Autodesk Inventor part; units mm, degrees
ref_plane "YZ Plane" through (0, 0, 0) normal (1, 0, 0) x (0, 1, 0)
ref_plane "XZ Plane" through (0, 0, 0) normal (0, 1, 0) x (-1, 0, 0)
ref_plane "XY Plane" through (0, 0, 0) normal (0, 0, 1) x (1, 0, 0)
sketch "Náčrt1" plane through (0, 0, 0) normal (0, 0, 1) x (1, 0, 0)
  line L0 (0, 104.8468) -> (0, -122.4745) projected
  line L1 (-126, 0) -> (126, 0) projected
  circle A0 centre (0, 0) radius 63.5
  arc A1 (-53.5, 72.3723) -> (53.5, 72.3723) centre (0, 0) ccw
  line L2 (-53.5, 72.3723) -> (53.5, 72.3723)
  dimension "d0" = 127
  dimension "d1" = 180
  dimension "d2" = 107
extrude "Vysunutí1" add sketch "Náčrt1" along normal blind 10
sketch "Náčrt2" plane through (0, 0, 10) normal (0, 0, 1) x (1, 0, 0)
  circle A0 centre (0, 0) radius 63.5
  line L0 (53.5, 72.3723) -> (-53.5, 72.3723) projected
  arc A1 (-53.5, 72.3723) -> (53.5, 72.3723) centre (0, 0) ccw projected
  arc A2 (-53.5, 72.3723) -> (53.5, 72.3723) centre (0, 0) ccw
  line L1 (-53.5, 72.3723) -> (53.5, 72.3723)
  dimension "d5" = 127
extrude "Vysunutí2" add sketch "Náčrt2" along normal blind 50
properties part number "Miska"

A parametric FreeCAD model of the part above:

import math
import FreeCAD as App
import Part
import Sketcher
from FreeCAD import Vector

doc = App.newDocument("Part")
body = doc.addObject("PartDesign::Body", "Body")

# Sketch on XY plane
sketch1 = body.newObject("Sketcher::SketchObject", "Sketch")
sketch1.AttachmentSupport = (doc.getObject("XY_Plane"), [""])
sketch1.MapMode = "FlatFace"
sketch1.addGeometry([
    Part.LineSegment(Vector(54, 72, 0), Vector(-54, 72, 0)),
    Part.ArcOfCircle(Part.Circle(Vector(0, 0, 0), Vector(0, 0, 1), 90), math.radians(126), math.radians(414)),
], False)
sketch1.addConstraint([
    Sketcher.Constraint("Coincident", 0, 1, 1, 2),
    Sketcher.Constraint("Coincident", 1, 1, 0, 2),
    Sketcher.Constraint("Horizontal", 0),
    Sketcher.Constraint("Coincident", 1, 3, -1, 1),
    Sketcher.Constraint("Radius", 1, 90.0),
    Sketcher.Constraint("DistanceX", 0, 2, 0, 1, 107.0),
])
pad1 = body.newObject("PartDesign::Pad", "Pad")
pad1.Profile = sketch1
pad1.Length = 10

# Sketch on XY plane
sketch2 = body.newObject("Sketcher::SketchObject", "Sketch001")
sketch2.AttachmentSupport = (doc.getObject("XY_Plane"), [""])
sketch2.MapMode = "FlatFace"
sketch2.AttachmentOffset = App.Placement(Vector(0, 0, 10), App.Rotation())
sketch2.addGeometry([
    Part.ArcOfCircle(Part.Circle(Vector(0, 0, 0), Vector(0, 0, 1), 90), math.radians(126), math.radians(414)),
    Part.LineSegment(Vector(54, 72, 0), Vector(-54, 72, 0)),
    Part.Circle(Vector(0, 0, 0), Vector(0, 0, 1), 64),
], False)
sketch2.addConstraint([
    Sketcher.Constraint("Coincident", 0, 1, 1, 2),
    Sketcher.Constraint("Coincident", 1, 1, 0, 2),
    Sketcher.Constraint("Horizontal", 1),
    Sketcher.Constraint("Coincident", 0, 3, -1, 1),
    Sketcher.Constraint("Coincident", 2, 3, -1, 1),
    Sketcher.Constraint("Diameter", 2, 127.0),
    Sketcher.Constraint("Radius", 0, 90.0),
    Sketcher.Constraint("DistanceX", 1, 2, 1, 1, 107.0),
])
pad2 = body.newObject("PartDesign::Pad", "Pad001")
pad2.Profile = sketch2
pad2.Length = 50

doc.recompute()
